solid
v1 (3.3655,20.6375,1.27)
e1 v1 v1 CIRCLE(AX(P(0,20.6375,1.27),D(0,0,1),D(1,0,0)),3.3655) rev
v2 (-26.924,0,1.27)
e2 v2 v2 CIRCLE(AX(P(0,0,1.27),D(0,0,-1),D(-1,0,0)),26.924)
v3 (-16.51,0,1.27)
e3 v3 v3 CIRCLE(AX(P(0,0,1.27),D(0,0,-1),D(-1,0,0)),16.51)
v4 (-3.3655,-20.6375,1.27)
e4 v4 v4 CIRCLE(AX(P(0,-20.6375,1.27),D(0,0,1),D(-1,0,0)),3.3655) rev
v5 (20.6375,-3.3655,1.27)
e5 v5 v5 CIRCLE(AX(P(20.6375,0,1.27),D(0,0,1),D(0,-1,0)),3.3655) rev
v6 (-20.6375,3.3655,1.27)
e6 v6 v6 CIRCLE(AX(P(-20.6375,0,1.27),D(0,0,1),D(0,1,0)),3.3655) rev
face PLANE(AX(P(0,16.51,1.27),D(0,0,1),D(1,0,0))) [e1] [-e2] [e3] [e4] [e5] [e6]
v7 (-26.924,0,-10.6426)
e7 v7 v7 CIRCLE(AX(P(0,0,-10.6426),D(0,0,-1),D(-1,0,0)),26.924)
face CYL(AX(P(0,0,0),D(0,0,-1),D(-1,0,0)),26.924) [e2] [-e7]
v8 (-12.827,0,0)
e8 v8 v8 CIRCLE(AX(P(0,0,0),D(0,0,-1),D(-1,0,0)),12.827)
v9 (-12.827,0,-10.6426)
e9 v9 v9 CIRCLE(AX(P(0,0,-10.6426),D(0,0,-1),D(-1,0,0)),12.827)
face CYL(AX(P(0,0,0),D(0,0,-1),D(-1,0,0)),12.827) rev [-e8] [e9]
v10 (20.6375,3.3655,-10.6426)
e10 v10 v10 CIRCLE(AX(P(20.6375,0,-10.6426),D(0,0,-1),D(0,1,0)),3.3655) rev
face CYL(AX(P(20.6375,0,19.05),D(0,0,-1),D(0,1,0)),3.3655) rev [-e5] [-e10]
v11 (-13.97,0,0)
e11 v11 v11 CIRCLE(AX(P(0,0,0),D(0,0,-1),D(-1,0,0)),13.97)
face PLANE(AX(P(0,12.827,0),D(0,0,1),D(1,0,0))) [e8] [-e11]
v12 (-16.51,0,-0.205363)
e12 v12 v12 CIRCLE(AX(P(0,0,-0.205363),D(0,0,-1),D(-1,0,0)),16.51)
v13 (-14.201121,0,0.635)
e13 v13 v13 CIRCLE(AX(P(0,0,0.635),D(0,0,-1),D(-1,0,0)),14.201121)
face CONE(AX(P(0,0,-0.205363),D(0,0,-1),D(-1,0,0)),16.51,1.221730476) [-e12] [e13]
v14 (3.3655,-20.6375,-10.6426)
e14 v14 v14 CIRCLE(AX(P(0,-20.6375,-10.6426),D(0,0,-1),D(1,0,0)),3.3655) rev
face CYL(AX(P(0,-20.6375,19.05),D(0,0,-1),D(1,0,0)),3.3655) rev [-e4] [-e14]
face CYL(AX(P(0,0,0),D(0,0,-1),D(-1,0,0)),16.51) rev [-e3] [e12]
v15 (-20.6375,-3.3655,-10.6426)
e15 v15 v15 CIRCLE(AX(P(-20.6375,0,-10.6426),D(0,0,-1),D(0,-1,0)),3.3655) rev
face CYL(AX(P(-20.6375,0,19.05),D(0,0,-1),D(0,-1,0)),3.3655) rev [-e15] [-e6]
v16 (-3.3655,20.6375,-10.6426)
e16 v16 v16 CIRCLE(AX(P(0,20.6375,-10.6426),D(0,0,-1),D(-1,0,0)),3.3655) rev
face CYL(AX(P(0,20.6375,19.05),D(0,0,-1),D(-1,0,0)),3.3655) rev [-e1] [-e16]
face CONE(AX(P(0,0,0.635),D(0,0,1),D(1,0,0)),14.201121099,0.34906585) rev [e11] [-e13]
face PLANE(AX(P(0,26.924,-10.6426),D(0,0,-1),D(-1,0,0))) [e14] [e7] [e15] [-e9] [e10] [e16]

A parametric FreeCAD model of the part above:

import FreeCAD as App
import Part
import Sketcher
from FreeCAD import Vector
Q = App.Units.Quantity


def add_polygon(sketch, points):
    """Adds a closed chain of lines whose ends are joined by coincident constraints."""
    first, n = sketch.GeometryCount, len(points)
    for a, b in zip(points, points[1:] + points[:1]):
        sketch.addGeometry(Part.LineSegment(App.Vector(*a, 0), App.Vector(*b, 0)), False)
    for i in range(n):
        sketch.addConstraint(Sketcher.Constraint("Coincident", first + i, 2, first + (i + 1) % n, 1))

doc = App.newDocument("Part")
params = doc.addObject("Spreadsheet::Sheet", "Params")
for row, (alias, value) in enumerate([
    ("sketch1_width", "0.41 in"),
    ("sketch1_width2", "0.045 in"),
    ("sketch1_height", "0.469 in"),
    ("sketch1_height2", "0.419 in"),
    ("revolution_angle", "360 deg"),
    ("sketch2_diameter", "0.265 in"),
    ("pocket1_length", "1.5 in"),
], start=1):
    params.set(f"A{row}", alias)
    params.set(f"B{row}", "=" + value)
    params.setAlias(f"B{row}", alias)

body = doc.addObject("PartDesign::Body", "Body")

# Sketch on YZ plane
sketch1 = doc.addObject("Sketcher::SketchObject", "Sketch")
body.addObject(sketch1)
sketch1.AttachmentSupport = (doc.YZ_Plane, [""])
sketch1.MapMode = "FlatFace"
add_polygon(sketch1, [(26.9, -10.6), (26.9, 1.3), (16.5, 1.3), (16.5, -0.2), (14.2, 0.6), (14, 0), (12.8, 0), (12.8, -10.6)])  # lines 0-7
sketch1.addConstraint([
    Sketcher.Constraint("Vertical", 0),
    Sketcher.Constraint("Horizontal", 1),
    Sketcher.Constraint("Vertical", 2),
    Sketcher.Constraint("Horizontal", 5),
    Sketcher.Constraint("Vertical", 6),
    Sketcher.Constraint("Horizontal", 7),
    Sketcher.Constraint("PointOnObject", 4, 2, -1),
    Sketcher.Constraint("Perpendicular", 3, 4),
    Sketcher.Constraint("Angle", 3, Q("160 deg")),
    Sketcher.Constraint("DistanceX", 1, 2, 1, 1, Q("0.41 in")),
    Sketcher.Constraint("DistanceX", 4, 2, 2, 2, Q("0.1 in")),
    Sketcher.Constraint("DistanceX", 5, 2, 5, 1, Q("0.045 in")),
    Sketcher.Constraint("DistanceY", 0, 1, 0, 2, Q("0.469 in")),
    Sketcher.Constraint("DistanceY", 6, 2, 6, 1, Q("0.419 in")),
    Sketcher.Constraint("DistanceX", -1, 1, 0, 2, Q("1.06 in")),
    Sketcher.Constraint("DistanceY", -1, 1, 3, 2, Q("0.025 in")),
])
sketch1.setExpression("Constraints[17]", "Params.sketch1_width")
sketch1.setExpression("Constraints[19]", "Params.sketch1_width2")
sketch1.setExpression("Constraints[20]", "Params.sketch1_height")
sketch1.setExpression("Constraints[21]", "Params.sketch1_height2")
revolution = doc.addObject("PartDesign::Revolution", "Revolution")
body.addObject(revolution)
revolution.Profile = sketch1
revolution.ReferenceAxis = (sketch1, ["V_Axis"])
revolution.setExpression("Angle", "Params.revolution_angle")

# Sketch on XY plane
sketch2 = doc.addObject("Sketcher::SketchObject", "Sketch001")
body.addObject(sketch2)
sketch2.AttachmentSupport = (doc.XY_Plane, [""])
sketch2.MapMode = "FlatFace"
sketch2.addGeometry(Part.Circle(Vector(0, 20.6, 0), Vector(0, 0, 1), 3.4), False)
sketch2.addConstraint([
    Sketcher.Constraint("PointOnObject", 0, 3, -2),
    Sketcher.Constraint("Diameter", 0, Q("0.265 in")),
    Sketcher.Constraint("DistanceY", -1, 1, 0, 3, Q("0.8125 in")),
])
sketch2.setExpression("Constraints[1]", "Params.sketch2_diameter")
pocket1 = doc.addObject("PartDesign::Pocket", "Pocket")
body.addObject(pocket1)
pocket1.Profile = sketch2
pocket1.setExpression("Length", "Params.pocket1_length")
pocket1.Midplane = True
doc.recompute()

polarpattern = doc.addObject("PartDesign::PolarPattern", "PolarPattern")
body.addObject(polarpattern)
polarpattern.Originals = [pocket1]
polarpattern.Axis = (doc.Z_Axis, [""])
polarpattern.Angle = 360
polarpattern.Occurrences = 4
body.Tip = polarpattern

doc.recompute()
